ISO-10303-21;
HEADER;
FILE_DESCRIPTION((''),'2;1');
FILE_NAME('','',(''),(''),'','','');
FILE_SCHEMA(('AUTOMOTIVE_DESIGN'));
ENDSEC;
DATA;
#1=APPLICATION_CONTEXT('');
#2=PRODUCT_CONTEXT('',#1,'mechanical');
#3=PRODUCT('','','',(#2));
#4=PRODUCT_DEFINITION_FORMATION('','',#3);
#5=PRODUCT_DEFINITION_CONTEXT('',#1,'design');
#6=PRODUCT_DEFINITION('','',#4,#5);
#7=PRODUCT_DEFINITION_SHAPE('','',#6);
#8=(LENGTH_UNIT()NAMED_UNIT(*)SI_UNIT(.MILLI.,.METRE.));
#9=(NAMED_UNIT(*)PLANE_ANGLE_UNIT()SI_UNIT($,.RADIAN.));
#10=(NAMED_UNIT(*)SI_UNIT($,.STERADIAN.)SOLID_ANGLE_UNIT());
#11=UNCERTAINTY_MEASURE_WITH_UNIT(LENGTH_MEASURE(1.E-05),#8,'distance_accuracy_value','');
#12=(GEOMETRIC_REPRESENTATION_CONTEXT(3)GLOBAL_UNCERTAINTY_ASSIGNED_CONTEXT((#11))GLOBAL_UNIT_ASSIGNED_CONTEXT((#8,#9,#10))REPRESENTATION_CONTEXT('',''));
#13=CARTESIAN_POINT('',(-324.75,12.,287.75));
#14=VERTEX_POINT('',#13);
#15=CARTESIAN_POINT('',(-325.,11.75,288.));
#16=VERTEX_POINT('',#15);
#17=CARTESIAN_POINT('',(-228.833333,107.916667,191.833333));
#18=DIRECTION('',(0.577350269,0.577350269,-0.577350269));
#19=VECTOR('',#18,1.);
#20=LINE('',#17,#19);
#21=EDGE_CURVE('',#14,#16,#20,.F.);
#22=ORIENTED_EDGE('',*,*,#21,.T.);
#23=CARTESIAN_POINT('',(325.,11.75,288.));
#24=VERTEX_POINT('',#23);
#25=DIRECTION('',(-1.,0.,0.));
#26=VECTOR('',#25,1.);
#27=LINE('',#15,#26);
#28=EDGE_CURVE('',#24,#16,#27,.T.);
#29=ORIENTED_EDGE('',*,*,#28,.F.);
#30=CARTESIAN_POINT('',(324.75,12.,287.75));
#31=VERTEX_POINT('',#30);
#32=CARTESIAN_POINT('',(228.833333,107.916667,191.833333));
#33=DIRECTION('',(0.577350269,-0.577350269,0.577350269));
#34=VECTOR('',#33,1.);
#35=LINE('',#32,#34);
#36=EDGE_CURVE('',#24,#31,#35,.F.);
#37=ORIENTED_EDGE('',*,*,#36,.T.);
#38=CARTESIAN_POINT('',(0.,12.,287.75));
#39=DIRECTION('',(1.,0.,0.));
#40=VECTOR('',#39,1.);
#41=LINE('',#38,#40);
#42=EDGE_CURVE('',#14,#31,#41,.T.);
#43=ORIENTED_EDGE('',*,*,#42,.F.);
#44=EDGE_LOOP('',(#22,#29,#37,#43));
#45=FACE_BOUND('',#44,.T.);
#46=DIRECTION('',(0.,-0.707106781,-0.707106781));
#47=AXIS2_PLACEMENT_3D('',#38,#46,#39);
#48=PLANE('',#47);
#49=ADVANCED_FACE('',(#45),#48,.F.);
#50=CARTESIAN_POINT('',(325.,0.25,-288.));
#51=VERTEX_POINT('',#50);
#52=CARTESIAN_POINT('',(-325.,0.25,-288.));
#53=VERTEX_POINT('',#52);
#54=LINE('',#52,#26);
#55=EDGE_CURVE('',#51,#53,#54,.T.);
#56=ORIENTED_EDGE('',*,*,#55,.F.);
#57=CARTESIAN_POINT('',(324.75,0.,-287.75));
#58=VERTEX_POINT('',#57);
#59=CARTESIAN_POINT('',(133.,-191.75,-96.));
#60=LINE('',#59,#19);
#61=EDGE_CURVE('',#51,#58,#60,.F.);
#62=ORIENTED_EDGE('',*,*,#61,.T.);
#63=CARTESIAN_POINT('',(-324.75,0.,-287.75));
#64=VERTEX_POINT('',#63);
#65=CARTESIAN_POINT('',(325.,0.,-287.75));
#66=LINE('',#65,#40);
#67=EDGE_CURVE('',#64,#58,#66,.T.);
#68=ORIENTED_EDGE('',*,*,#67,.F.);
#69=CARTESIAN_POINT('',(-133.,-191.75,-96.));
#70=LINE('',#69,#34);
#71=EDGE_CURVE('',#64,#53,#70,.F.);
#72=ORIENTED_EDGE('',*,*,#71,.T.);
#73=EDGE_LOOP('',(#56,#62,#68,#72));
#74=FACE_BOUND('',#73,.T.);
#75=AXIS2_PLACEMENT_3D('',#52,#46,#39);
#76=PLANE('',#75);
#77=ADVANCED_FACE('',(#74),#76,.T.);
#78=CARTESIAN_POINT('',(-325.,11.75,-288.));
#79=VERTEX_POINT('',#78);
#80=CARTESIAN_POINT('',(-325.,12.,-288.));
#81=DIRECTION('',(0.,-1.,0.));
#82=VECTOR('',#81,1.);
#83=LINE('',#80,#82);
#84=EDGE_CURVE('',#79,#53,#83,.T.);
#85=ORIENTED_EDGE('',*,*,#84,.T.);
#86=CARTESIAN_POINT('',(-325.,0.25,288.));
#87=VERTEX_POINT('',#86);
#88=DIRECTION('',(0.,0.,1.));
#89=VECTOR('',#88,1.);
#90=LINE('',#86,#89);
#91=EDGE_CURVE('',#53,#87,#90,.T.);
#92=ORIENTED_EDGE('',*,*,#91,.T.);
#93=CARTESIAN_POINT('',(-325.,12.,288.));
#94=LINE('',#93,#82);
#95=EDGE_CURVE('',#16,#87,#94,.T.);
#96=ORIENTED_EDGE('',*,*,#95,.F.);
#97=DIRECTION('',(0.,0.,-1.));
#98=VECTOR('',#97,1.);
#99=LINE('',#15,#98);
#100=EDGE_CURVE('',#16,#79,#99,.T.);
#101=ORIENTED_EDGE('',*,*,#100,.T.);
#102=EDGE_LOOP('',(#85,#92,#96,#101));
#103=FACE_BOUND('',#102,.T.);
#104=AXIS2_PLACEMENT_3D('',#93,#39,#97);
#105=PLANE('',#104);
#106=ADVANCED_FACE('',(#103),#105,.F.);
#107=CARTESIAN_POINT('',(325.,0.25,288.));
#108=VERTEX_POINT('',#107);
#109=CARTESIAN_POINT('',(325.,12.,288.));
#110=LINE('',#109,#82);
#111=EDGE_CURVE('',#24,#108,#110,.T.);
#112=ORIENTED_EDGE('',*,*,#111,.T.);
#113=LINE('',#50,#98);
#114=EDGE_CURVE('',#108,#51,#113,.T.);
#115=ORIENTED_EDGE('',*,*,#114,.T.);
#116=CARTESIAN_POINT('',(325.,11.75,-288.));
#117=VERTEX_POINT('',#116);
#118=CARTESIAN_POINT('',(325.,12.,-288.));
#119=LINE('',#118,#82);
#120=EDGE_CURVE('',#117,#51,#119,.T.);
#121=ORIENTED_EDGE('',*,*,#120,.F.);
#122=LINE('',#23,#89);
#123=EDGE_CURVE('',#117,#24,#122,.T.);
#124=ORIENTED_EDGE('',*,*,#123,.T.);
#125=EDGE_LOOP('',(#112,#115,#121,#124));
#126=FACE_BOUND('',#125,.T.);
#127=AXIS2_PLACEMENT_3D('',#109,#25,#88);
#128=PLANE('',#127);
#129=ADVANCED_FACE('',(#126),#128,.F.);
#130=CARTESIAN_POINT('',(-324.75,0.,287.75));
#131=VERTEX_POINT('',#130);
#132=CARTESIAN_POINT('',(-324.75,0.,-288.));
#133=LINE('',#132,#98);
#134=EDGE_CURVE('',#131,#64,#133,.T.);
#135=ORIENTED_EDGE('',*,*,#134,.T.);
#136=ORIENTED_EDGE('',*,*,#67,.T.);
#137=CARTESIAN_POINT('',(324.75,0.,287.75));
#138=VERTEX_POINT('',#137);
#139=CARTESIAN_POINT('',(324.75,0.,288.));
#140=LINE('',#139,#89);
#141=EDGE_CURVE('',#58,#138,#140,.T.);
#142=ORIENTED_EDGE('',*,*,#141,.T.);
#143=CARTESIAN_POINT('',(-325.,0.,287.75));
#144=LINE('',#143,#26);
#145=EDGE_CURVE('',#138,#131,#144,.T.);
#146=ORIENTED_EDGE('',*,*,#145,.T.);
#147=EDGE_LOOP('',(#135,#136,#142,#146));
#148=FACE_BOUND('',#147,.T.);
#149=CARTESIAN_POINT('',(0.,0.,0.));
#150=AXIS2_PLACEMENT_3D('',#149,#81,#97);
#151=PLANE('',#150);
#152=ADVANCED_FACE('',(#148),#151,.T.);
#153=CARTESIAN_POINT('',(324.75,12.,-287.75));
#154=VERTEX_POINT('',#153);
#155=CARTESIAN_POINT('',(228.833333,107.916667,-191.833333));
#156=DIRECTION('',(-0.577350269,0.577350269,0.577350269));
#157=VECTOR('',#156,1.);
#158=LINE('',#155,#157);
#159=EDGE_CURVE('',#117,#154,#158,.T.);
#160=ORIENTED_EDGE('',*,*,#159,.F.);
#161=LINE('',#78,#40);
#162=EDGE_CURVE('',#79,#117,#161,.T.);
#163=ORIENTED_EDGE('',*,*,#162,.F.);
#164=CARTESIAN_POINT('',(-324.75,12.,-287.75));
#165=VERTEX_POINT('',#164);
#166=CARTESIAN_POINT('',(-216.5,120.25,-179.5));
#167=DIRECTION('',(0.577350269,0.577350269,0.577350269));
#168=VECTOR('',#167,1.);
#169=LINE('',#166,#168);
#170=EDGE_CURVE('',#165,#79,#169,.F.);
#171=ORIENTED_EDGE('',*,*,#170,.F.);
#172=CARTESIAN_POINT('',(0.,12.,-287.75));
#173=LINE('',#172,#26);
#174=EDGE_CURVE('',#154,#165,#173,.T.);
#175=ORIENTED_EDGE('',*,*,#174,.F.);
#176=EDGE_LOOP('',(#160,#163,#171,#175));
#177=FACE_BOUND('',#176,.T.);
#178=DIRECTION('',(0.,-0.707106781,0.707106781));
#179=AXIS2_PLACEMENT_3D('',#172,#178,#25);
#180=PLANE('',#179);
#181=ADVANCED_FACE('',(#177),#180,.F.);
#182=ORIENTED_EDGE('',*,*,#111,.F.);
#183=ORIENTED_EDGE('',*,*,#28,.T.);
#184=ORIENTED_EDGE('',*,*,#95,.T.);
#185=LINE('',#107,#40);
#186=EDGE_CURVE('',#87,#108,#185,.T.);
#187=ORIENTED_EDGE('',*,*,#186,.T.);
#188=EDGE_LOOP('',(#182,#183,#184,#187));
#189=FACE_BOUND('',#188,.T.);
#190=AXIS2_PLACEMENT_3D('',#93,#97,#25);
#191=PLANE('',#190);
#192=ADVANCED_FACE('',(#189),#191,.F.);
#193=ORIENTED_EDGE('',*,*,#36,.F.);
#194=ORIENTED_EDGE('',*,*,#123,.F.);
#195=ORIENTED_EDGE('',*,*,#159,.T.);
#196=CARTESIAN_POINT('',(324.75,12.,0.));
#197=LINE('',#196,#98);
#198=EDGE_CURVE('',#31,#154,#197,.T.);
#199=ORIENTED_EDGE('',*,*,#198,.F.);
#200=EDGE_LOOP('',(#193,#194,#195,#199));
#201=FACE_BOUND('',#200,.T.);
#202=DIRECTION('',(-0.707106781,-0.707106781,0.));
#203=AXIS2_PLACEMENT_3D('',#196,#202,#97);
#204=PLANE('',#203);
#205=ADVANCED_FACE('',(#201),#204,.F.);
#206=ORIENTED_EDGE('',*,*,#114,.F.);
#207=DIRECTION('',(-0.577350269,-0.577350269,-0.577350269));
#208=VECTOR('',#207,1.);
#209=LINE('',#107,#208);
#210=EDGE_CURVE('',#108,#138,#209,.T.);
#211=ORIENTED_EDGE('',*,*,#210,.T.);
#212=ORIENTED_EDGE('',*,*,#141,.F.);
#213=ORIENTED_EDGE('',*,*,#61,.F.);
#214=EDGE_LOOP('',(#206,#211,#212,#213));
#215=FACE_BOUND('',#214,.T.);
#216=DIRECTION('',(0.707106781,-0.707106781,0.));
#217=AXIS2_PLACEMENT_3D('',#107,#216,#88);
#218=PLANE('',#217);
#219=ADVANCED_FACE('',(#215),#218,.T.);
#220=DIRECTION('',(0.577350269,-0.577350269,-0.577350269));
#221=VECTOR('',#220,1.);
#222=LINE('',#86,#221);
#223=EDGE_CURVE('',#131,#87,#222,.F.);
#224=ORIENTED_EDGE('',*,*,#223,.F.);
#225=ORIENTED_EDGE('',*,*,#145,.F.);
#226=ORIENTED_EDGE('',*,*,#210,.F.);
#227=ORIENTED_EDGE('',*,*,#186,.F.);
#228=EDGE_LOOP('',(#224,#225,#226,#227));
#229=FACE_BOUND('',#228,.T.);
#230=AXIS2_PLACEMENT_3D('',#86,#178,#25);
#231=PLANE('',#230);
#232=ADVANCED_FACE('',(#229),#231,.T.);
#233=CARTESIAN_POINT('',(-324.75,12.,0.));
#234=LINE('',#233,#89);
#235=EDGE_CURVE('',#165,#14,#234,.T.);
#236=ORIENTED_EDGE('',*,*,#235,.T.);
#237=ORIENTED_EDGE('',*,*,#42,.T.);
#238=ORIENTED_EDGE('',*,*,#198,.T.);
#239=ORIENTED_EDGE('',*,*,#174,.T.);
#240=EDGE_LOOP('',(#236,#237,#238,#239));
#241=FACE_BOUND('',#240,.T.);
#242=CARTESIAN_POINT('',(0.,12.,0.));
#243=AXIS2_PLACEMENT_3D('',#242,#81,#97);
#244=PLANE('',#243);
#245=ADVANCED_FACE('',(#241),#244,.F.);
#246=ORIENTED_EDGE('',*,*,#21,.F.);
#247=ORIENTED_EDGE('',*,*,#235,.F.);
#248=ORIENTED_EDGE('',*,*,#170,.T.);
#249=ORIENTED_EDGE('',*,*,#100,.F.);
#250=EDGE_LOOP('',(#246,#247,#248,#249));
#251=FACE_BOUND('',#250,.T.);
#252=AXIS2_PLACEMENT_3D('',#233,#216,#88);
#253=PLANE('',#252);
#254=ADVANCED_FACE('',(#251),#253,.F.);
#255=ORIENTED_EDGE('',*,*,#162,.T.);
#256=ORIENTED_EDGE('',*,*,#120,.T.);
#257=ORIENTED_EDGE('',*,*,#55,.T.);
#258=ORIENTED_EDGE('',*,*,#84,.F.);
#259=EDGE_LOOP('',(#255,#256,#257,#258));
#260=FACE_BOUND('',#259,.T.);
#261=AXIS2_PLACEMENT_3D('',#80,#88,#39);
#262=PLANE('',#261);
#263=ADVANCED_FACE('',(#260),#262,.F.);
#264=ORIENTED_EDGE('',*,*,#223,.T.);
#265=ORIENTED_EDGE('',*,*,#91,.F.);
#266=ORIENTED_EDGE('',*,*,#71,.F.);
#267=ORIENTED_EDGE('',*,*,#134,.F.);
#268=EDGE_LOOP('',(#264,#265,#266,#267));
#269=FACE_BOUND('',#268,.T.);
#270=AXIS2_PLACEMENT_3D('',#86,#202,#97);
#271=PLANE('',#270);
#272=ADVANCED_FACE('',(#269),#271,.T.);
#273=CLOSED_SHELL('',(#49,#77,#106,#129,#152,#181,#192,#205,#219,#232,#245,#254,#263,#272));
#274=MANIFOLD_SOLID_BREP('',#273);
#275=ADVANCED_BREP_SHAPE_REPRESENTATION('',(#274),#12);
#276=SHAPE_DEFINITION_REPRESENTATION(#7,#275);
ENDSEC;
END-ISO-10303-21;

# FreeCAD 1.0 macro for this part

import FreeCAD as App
import Part
import Sketcher
from FreeCAD import Vector


def edges_at(feature, points):
    """Names of the edges that pass closest to the given points."""
    edges = feature.Shape.Edges
    near = lambda p: min(range(len(edges)), key=lambda i: edges[i].distToShape(Part.Vertex(*p))[0])
    return sorted({f"Edge{near(p) + 1}" for p in points})


def add_polygon(sketch, points):
    """Adds a closed chain of lines whose ends are joined by coincident constraints."""
    first, n = sketch.GeometryCount, len(points)
    for a, b in zip(points, points[1:] + points[:1]):
        sketch.addGeometry(Part.LineSegment(App.Vector(*a, 0), App.Vector(*b, 0)), False)
    for i in range(n):
        sketch.addConstraint(Sketcher.Constraint("Coincident", first + i, 2, first + (i + 1) % n, 1))

doc = App.newDocument("Part")
body = doc.addObject("PartDesign::Body", "Body")

# Sketch on XZ plane
sketch1 = doc.addObject("Sketcher::SketchObject", "Sketch")
body.addObject(sketch1)
sketch1.AttachmentSupport = (doc.XZ_Plane, [""])
sketch1.MapMode = "FlatFace"
add_polygon(sketch1, [(-325, -288), (-325, 288), (325, 288), (325, -288)])  # lines 0-3
sketch1.addConstraint(Sketcher.Constraint("Vertical", 0))
sketch1.addConstraint(Sketcher.Constraint("Horizontal", 1))
sketch1.addConstraint(Sketcher.Constraint("Vertical", 2))
sketch1.addConstraint(Sketcher.Constraint("Horizontal", 3))
sketch1.addConstraint(Sketcher.Constraint("Symmetric", 0, 2, 2, 2, -1, 1))
sketch1.addConstraint(Sketcher.Constraint("DistanceX", 1, 1, 1, 2, 650.0))
sketch1.addConstraint(Sketcher.Constraint("DistanceY", 0, 1, 0, 2, 576.0))
pad1 = doc.addObject("PartDesign::Pad", "Pad")
body.addObject(pad1)
pad1.Profile = sketch1
pad1.Length = 12
pad1.Reversed = True
doc.recompute()

chamfer = doc.addObject("PartDesign::Chamfer", "Chamfer")
body.addObject(chamfer)
chamfer.Base = (pad1, edges_at(pad1, [
    (-325, 12, 0),
    (0, 12, 288),
    (325, 12, 0),
    (0, 0, 288),
    (-325, 0, 0),
    (0, 0, -288),
    (325, 0, 0),
    (0, 12, -288),
]))
chamfer.Size = 0.25

doc.recompute()
